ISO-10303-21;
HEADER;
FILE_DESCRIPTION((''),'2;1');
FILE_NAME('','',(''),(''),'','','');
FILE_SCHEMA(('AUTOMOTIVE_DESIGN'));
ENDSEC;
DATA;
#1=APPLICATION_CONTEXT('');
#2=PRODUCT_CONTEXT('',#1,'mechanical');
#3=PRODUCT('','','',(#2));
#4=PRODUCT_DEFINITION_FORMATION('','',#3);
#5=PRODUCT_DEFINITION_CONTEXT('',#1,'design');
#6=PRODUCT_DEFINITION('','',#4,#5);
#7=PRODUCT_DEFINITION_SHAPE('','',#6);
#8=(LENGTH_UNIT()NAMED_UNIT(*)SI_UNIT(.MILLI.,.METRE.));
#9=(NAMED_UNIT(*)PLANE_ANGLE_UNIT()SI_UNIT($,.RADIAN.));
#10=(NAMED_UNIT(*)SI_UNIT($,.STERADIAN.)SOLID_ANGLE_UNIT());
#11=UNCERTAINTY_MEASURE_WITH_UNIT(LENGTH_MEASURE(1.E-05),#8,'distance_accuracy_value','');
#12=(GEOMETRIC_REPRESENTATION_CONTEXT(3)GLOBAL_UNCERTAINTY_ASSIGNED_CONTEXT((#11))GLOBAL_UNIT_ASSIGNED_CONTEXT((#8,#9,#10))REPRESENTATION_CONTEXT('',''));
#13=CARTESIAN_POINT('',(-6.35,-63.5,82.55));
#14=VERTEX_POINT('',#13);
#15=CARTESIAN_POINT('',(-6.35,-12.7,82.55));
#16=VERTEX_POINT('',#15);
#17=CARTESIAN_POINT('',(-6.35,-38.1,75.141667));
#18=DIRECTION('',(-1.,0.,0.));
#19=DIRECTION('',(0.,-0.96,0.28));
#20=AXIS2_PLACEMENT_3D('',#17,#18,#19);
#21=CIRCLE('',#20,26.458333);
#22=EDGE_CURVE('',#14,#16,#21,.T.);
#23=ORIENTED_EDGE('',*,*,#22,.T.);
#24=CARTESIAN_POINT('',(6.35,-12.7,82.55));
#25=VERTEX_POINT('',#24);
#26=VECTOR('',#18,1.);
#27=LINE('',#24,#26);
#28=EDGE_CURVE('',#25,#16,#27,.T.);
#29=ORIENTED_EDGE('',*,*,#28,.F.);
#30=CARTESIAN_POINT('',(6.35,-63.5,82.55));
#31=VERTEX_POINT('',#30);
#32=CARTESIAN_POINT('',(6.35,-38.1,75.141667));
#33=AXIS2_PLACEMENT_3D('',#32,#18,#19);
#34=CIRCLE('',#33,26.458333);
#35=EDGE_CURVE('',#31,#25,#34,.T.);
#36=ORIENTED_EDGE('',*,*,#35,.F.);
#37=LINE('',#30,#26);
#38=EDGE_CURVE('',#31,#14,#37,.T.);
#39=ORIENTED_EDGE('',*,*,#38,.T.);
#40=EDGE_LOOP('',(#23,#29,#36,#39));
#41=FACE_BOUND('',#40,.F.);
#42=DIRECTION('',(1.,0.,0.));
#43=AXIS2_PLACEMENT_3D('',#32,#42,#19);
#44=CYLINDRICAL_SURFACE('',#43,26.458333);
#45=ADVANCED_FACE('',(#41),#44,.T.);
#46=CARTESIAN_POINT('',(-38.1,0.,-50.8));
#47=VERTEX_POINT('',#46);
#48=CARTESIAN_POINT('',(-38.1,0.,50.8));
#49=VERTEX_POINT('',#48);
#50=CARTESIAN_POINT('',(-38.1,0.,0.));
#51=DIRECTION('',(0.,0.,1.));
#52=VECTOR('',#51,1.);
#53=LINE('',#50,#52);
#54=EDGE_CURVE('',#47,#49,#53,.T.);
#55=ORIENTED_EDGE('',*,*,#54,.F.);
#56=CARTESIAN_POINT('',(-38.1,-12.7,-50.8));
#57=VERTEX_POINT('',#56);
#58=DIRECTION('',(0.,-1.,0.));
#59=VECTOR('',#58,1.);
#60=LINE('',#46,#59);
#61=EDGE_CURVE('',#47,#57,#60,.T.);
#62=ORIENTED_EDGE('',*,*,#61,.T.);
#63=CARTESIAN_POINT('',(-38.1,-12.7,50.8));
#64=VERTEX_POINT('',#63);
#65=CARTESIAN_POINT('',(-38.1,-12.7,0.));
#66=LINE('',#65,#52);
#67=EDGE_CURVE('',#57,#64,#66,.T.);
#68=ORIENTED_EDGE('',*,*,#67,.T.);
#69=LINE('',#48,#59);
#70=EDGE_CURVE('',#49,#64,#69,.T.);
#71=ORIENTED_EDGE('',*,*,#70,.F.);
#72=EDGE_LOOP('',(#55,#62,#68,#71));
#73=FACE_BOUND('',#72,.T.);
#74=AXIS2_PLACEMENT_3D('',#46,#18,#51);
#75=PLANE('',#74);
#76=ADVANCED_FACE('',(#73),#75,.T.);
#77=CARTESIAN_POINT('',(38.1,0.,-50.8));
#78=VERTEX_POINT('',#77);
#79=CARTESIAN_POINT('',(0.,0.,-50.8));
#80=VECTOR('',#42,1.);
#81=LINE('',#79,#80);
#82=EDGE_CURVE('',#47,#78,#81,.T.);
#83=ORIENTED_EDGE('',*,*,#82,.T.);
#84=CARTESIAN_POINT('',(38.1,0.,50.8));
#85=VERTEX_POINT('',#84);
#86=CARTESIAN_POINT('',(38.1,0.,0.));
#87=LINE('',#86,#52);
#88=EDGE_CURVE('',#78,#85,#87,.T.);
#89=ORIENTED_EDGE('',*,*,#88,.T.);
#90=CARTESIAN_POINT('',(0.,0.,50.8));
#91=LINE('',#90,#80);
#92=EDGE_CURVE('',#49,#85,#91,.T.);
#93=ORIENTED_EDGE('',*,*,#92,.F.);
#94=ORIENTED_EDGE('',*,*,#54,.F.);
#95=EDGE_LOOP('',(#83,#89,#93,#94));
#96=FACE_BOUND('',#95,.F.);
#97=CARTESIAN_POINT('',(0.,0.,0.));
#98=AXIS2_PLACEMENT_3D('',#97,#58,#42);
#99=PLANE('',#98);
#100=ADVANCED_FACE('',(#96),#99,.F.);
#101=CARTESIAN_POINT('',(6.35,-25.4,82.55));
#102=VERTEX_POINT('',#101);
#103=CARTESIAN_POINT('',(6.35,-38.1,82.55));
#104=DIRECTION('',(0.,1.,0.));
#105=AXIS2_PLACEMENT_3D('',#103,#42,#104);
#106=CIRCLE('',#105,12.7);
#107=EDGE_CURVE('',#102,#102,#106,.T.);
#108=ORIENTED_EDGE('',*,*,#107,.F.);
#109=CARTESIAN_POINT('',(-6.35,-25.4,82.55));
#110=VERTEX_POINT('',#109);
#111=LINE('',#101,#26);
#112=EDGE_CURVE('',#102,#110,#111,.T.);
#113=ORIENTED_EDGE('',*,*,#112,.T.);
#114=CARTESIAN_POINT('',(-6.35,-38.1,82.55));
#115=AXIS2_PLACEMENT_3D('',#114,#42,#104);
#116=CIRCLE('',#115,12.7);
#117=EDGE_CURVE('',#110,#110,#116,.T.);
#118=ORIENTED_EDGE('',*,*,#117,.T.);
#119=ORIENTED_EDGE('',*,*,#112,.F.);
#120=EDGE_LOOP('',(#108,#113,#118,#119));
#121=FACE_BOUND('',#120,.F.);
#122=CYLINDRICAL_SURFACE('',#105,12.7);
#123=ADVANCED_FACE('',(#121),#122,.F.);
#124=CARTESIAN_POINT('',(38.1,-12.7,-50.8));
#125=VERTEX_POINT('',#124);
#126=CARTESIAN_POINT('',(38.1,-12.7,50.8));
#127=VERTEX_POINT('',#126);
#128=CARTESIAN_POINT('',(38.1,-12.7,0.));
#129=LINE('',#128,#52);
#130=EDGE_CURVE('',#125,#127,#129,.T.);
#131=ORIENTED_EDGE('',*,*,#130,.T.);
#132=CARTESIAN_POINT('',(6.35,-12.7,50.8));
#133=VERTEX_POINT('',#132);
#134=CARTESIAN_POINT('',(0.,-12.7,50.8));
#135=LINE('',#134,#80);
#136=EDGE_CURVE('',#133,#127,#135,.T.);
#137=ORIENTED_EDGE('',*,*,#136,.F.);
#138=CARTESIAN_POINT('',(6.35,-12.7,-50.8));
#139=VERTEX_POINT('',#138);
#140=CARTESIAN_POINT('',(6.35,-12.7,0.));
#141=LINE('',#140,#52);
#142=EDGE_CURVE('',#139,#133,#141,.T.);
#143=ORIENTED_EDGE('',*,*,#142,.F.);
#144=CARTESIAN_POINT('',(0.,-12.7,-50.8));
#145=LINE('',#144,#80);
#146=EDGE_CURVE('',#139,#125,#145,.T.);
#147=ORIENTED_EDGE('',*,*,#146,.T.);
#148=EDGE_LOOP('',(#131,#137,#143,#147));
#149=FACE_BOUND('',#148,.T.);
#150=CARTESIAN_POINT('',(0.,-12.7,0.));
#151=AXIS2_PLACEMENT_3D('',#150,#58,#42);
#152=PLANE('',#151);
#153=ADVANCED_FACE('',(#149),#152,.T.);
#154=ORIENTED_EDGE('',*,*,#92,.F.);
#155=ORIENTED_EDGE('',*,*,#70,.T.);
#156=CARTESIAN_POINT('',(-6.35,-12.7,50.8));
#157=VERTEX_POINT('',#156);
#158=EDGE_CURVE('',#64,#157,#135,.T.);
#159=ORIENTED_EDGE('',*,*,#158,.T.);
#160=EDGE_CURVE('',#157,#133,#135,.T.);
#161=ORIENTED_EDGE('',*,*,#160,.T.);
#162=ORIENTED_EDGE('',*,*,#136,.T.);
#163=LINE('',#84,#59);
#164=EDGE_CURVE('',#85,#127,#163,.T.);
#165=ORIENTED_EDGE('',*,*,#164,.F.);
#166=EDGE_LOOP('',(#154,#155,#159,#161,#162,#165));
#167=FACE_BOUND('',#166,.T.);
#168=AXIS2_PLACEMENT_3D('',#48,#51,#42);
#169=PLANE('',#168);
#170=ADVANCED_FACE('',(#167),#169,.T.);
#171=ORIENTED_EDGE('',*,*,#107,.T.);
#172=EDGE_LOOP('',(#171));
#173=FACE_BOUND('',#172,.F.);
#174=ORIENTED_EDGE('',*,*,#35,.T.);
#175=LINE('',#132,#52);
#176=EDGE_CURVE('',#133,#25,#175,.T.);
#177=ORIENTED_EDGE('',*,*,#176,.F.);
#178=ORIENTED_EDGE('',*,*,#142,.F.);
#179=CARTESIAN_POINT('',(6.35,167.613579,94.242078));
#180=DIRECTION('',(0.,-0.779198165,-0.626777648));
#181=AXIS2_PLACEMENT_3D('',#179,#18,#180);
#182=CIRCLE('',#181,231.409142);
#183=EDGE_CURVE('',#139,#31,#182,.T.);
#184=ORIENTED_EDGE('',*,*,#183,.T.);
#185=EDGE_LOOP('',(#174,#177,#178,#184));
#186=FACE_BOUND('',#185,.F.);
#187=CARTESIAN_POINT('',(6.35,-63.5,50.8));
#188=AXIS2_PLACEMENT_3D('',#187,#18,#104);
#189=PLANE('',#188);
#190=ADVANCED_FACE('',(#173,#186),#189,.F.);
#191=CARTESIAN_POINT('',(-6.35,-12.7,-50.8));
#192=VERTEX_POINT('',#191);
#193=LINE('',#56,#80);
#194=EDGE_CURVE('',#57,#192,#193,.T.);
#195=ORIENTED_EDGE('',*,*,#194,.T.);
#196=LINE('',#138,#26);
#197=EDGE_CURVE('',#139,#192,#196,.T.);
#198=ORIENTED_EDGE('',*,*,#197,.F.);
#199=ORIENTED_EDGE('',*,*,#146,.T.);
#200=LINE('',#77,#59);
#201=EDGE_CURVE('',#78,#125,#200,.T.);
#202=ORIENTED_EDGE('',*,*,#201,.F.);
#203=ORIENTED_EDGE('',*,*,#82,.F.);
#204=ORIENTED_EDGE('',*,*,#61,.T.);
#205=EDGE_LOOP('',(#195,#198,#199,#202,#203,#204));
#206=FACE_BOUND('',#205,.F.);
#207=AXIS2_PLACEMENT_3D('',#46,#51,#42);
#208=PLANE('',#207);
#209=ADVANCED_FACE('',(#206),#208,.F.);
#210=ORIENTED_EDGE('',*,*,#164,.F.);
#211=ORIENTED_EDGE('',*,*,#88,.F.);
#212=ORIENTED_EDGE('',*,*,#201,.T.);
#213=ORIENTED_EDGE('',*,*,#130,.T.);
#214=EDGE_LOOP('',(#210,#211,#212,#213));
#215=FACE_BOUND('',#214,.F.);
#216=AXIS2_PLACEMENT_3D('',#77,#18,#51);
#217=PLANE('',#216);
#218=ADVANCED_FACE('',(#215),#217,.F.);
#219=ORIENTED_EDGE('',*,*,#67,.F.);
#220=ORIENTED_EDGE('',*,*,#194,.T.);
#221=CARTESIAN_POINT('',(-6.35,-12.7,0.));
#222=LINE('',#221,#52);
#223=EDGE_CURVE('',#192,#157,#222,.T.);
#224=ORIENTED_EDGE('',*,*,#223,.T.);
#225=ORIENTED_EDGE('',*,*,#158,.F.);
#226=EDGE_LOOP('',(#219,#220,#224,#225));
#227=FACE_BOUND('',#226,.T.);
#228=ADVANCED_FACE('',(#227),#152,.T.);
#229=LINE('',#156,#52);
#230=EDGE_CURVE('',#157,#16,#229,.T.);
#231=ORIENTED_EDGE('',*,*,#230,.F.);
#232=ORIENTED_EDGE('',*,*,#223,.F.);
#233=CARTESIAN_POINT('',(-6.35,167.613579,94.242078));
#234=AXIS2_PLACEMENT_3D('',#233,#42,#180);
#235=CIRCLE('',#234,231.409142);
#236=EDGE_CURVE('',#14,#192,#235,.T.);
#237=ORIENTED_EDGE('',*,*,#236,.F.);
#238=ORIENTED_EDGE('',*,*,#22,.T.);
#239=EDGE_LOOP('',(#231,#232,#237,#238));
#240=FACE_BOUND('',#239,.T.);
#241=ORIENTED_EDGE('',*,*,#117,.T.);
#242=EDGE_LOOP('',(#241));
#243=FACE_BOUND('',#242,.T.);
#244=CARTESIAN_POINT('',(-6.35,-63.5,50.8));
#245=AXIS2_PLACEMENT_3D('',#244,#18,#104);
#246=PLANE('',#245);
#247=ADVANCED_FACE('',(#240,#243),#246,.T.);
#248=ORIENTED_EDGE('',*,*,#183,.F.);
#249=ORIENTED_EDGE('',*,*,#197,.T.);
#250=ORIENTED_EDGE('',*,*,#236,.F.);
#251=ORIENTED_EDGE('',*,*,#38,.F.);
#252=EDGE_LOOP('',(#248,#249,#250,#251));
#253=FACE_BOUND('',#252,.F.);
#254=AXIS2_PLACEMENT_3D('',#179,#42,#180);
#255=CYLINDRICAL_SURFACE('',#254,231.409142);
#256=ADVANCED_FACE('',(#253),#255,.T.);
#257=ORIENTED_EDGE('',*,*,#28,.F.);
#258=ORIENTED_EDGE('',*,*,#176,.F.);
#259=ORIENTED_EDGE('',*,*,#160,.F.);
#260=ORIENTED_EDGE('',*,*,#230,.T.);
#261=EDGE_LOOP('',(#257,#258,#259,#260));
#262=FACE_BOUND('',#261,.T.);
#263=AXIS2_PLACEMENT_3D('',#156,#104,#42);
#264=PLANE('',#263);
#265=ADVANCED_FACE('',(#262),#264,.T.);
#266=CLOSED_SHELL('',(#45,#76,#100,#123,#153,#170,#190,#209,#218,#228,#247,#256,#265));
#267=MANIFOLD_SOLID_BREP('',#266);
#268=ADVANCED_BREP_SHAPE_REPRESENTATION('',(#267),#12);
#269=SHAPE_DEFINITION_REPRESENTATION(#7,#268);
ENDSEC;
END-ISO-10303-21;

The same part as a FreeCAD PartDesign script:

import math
import FreeCAD as App
import Part
import Sketcher
from FreeCAD import Vector
Q = App.Units.Quantity

doc = App.newDocument("Part")
body = doc.addObject("PartDesign::Body", "Body")

sketch1 = doc.addObject("Sketcher::SketchObject", "Sketch")
body.addObject(sketch1)
sketch1.AttachmentSupport = (doc.XZ_Plane, [""])
sketch1.MapMode = "FlatFace"
sketch1.addGeometry([
    Part.LineSegment(Vector(-38, 51, 0), Vector(-38, -51, 0)),
    Part.LineSegment(Vector(-38, -51, 0), Vector(38, -51, 0)),
    Part.LineSegment(Vector(38, -51, 0), Vector(38, 51, 0)),
    Part.LineSegment(Vector(38, 51, 0), Vector(-38, 51, 0)),
], False)
sketch1.addConstraint([
    Sketcher.Constraint("Coincident", 0, 2, 1, 1),
    Sketcher.Constraint("Coincident", 1, 2, 2, 1),
    Sketcher.Constraint("Coincident", 2, 2, 3, 1),
    Sketcher.Constraint("Coincident", 3, 2, 0, 1),
    Sketcher.Constraint("Vertical", 0),
    Sketcher.Constraint("Horizontal", 1),
    Sketcher.Constraint("Vertical", 2),
    Sketcher.Constraint("Horizontal", 3),
    Sketcher.Constraint("Symmetric", 0, 2, 2, 2, -1, 1),
    Sketcher.Constraint("DistanceX", 1, 1, 1, 2, Q("3 in")),
    Sketcher.Constraint("DistanceY", 0, 2, 0, 1, Q("4 in")),
])
pad1 = doc.addObject("PartDesign::Pad", "Pad")
body.addObject(pad1)
pad1.Profile = sketch1
pad1.Length = Q("0.5 in")

sketch2 = doc.addObject("Sketcher::SketchObject", "Sketch001")
body.addObject(sketch2)
sketch2.AttachmentSupport = (doc.XZ_Plane, [""])
sketch2.MapMode = "FlatFace"
sketch2.AttachmentOffset = App.Placement(Vector(0, 0, 0.5 * 25.4), App.Rotation())
sketch2.addGeometry([
    Part.LineSegment(Vector(-6, 51, 0), Vector(-6, -51, 0)),
    Part.LineSegment(Vector(-6, -51, 0), Vector(6, -51, 0)),
    Part.LineSegment(Vector(6, -51, 0), Vector(6, 51, 0)),
    Part.LineSegment(Vector(6, 51, 0), Vector(-6, 51, 0)),
], False)
sketch2.addConstraint([
    Sketcher.Constraint("Coincident", 0, 2, 1, 1),
    Sketcher.Constraint("Coincident", 1, 2, 2, 1),
    Sketcher.Constraint("Coincident", 2, 2, 3, 1),
    Sketcher.Constraint("Coincident", 3, 2, 0, 1),
    Sketcher.Constraint("Vertical", 0),
    Sketcher.Constraint("Horizontal", 1),
    Sketcher.Constraint("Vertical", 2),
    Sketcher.Constraint("Horizontal", 3),
    Sketcher.Constraint("Symmetric", 0, 2, 2, 2, -1, 1),
    Sketcher.Constraint("DistanceY", 0, 2, 0, 1, Q("4 in")),
    Sketcher.Constraint("DistanceX", 1, 1, 1, 2, Q("0.5 in")),
])
pad2 = doc.addObject("PartDesign::Pad", "Pad001")
body.addObject(pad2)
pad2.Profile = sketch2
pad2.Length = Q("2 in")

sketch3 = doc.addObject("Sketcher::SketchObject", "Sketch002")
body.addObject(sketch3)
sketch3.AttachmentSupport = (doc.XY_Plane, [""])
sketch3.MapMode = "FlatFace"
sketch3.AttachmentOffset = App.Placement(Vector(0, 0, 2 * 25.4), App.Rotation())
sketch3.addGeometry([
    Part.LineSegment(Vector(-6, -13, 0), Vector(-6, -64, 0)),
    Part.LineSegment(Vector(-6, -64, 0), Vector(6, -64, 0)),
    Part.LineSegment(Vector(6, -64, 0), Vector(6, -13, 0)),
    Part.LineSegment(Vector(6, -13, 0), Vector(-6, -13, 0)),
], False)
sketch3.addConstraint([
    Sketcher.Constraint("Coincident", 0, 2, 1, 1),
    Sketcher.Constraint("Coincident", 1, 2, 2, 1),
    Sketcher.Constraint("Coincident", 2, 2, 3, 1),
    Sketcher.Constraint("Coincident", 3, 2, 0, 1),
    Sketcher.Constraint("Vertical", 0),
    Sketcher.Constraint("Horizontal", 1),
    Sketcher.Constraint("Vertical", 2),
    Sketcher.Constraint("Horizontal", 3),
    Sketcher.Constraint("DistanceY", 0, 2, 0, 1, Q("2 in")),
    Sketcher.Constraint("DistanceX", 1, 1, 1, 2, Q("0.5 in")),
    Sketcher.Constraint("DistanceY", 0, 2, -1, 1, Q("2.5 in")),
    Sketcher.Constraint("DistanceX", 0, 2, -1, 1, Q("0.25 in")),
])
pad3 = doc.addObject("PartDesign::Pad", "Pad002")
body.addObject(pad3)
pad3.Profile = sketch3
pad3.Length = Q("2 in")

sketch4 = doc.addObject("Sketcher::SketchObject", "Sketch003")
body.addObject(sketch4)
sketch4.AttachmentSupport = (doc.YZ_Plane, [""])
sketch4.MapMode = "FlatFace"
sketch4.AttachmentOffset = App.Placement(Vector(0, 0, 0.25 * 25.4), App.Rotation())
sketch4.addGeometry([
    Part.Circle(Vector(-38, 83, 0), Vector(0, 0, 1), 13),
    Part.ArcOfCircle(Part.Circle(Vector(168, 94, 0), Vector(0, 0, 1), 231), math.radians(-177), math.radians(-141)),
    Part.LineSegment(Vector(-64, 83, 0), Vector(-134, -36, 0)),
    Part.LineSegment(Vector(-134, -36, 0), Vector(-39, -67, 0)),
    Part.LineSegment(Vector(-39, -67, 0), Vector(-13, -51, 0)),
    Part.ArcOfCircle(Part.Circle(Vector(-38, 75, 0), Vector(0, 0, 1), 26), math.radians(16), math.radians(164)),
    Part.LineSegment(Vector(-13, 83, 0), Vector(0, 103, 0)),
    Part.LineSegment(Vector(0, 103, 0), Vector(-77, 103, 0)),
    Part.LineSegment(Vector(-77, 103, 0), Vector(-64, 83, 0)),
], False)
sketch4.addConstraint([
    Sketcher.Constraint("Coincident", 1, 1, 2, 1),
    Sketcher.Constraint("Coincident", 2, 2, 3, 1),
    Sketcher.Constraint("Coincident", 3, 2, 4, 1),
    Sketcher.Constraint("Coincident", 4, 2, 1, 2),
    Sketcher.Constraint("Coincident", 5, 1, 6, 1),
    Sketcher.Constraint("Coincident", 6, 2, 7, 1),
    Sketcher.Constraint("Coincident", 7, 2, 8, 1),
    Sketcher.Constraint("Coincident", 8, 2, 5, 2),
    Sketcher.Constraint("Horizontal", 7),
    Sketcher.Constraint("Coincident", 8, 2, 1, 1),
    Sketcher.Constraint("PointOnObject", 6, 2, -2),
    Sketcher.Constraint("Horizontal", 0, 3, 1, 1),
    Sketcher.Constraint("Horizontal", 1, 1, 5, 1),
    Sketcher.Constraint("Vertical", 0, 3, 5, 3),
    Sketcher.Constraint("Vertical", 4, 2, 5, 1),
    Sketcher.Constraint("Diameter", 0, Q("1 in")),
    Sketcher.Constraint("DistanceY", 4, 2, -1, 1, Q("2 in")),
    Sketcher.Constraint("DistanceX", 1, 1, 0, 3, Q("1 in")),
    Sketcher.Constraint("DistanceX", 0, 3, -1, 1, Q("1.5 in")),
    Sketcher.Constraint("DistanceY", -1, 1, 0, 3, Q("3.25 in")),
    Sketcher.Constraint("Radius", 1, Q("231.409142 mm")),
    Sketcher.Constraint("Radius", 5, Q("26.458333 mm")),
    Sketcher.Constraint("DistanceX", 7, 2, 7, 1, Q("76.800019 mm")),
    Sketcher.Constraint("DistanceY", 3, 2, -1, 1, Q("66.6712 mm")),
    Sketcher.Constraint("Distance", 3, Q("99.487442 mm")),
    Sketcher.Constraint("Distance", 8, Q("24.604679 mm")),
    Sketcher.Constraint("DistanceX", 2, 2, -1, 1, Q("133.589551 mm")),
    Sketcher.Constraint("DistanceY", 2, 2, -1, 1, Q("36.487788 mm")),
])
pocket1 = doc.addObject("PartDesign::Pocket", "Pocket")
body.addObject(pocket1)
pocket1.Profile = sketch4
pocket1.Length = Q("1 in")

doc.recompute()
